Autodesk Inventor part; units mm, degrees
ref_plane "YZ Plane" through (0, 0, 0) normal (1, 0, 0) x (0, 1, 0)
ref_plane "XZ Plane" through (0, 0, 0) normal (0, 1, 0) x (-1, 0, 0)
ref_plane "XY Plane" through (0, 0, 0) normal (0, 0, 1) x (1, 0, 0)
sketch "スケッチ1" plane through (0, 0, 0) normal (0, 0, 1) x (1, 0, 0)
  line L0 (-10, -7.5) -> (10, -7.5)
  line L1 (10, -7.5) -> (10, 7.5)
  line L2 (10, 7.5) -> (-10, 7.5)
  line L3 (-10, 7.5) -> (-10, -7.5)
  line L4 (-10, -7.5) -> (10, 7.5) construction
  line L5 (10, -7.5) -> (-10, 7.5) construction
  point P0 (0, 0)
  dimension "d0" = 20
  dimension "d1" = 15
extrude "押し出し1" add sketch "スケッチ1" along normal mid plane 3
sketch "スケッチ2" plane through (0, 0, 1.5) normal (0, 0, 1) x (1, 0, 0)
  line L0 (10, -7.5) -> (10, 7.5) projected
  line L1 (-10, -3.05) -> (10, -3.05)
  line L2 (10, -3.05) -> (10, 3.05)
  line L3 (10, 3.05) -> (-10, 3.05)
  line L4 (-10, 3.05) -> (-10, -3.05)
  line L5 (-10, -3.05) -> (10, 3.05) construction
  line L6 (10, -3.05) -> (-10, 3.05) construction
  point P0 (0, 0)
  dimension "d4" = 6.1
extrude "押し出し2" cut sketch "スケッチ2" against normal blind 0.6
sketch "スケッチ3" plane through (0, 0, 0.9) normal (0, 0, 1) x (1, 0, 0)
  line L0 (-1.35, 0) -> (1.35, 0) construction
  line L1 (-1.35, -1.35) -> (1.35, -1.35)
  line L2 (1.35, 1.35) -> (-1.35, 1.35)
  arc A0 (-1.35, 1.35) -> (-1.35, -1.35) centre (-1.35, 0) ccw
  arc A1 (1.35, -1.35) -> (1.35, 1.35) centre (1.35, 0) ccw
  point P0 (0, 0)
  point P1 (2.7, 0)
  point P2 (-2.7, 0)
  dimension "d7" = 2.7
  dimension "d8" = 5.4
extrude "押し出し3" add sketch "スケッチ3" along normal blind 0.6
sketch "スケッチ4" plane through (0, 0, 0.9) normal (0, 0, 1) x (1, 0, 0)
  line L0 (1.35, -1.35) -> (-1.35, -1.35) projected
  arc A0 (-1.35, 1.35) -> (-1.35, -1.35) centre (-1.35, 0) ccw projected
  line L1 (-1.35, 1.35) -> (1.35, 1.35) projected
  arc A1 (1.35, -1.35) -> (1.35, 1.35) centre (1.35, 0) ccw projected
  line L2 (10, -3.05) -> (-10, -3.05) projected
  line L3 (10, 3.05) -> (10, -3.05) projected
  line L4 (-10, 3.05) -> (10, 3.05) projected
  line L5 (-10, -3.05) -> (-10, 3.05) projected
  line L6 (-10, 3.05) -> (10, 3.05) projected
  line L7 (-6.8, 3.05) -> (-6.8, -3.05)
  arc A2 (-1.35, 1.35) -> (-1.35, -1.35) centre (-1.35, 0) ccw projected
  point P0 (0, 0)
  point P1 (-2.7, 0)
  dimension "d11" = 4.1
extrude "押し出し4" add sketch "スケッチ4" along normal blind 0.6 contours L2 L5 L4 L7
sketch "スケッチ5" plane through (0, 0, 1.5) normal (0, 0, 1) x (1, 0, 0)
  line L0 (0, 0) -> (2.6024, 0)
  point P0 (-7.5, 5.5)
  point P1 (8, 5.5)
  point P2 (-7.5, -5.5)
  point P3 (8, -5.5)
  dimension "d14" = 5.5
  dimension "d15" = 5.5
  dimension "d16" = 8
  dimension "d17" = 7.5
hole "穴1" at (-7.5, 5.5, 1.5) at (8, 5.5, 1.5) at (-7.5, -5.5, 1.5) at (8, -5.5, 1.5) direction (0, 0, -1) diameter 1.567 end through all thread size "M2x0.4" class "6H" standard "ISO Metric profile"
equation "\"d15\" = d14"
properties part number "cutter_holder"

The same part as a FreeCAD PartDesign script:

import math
import FreeCAD as App
import Part
import Sketcher

V = App.Vector
Q = App.Units.Quantity


def add_polygon(sketch, points):
    """Adds a closed chain of lines whose ends are joined by coincident constraints."""
    first, n = sketch.GeometryCount, len(points)
    for a, b in zip(points, points[1:] + points[:1]):
        sketch.addGeometry(Part.LineSegment(App.Vector(*a, 0), App.Vector(*b, 0)), False)
    for i in range(n):
        sketch.addConstraint(Sketcher.Constraint("Coincident", first + i, 2, first + (i + 1) % n, 1))

doc = App.newDocument("Part")
body = doc.addObject("PartDesign::Body", "Body")

sketch1 = body.newObject("Sketcher::SketchObject", "Sketch")
sketch1.AttachmentSupport = (doc.getObject("XY_Plane"), [""])
sketch1.MapMode = "FlatFace"
add_polygon(sketch1, [(-10, 8), (-10, -8), (10, -8), (10, 8)])
sketch1.addConstraint([
    Sketcher.Constraint("Vertical", 0),
    Sketcher.Constraint("Horizontal", 1),
    Sketcher.Constraint("Vertical", 2),
    Sketcher.Constraint("Horizontal", 3),
    Sketcher.Constraint("Symmetric", 0, 2, 2, 2, -1, 1),
    Sketcher.Constraint("DistanceX", 1, 1, 1, 2, Q("20 mm")),
    Sketcher.Constraint("DistanceY", 0, 2, 0, 1, Q("15 mm")),
])
pad1 = body.newObject("PartDesign::Pad", "Pad")
pad1.Profile = sketch1
pad1.Length = 3
pad1.Midplane = True

sketch2 = body.newObject("Sketcher::SketchObject", "Sketch001")
sketch2.AttachmentSupport = (doc.getObject("XY_Plane"), [""])
sketch2.MapMode = "FlatFace"
sketch2.AttachmentOffset = App.Placement(V(0, 0, 1.5), App.Rotation())
add_polygon(sketch2, [(-10, -3), (10, -3), (10, 3), (-10, 3)])
sketch2.addConstraint([
    Sketcher.Constraint("Horizontal", 0),
    Sketcher.Constraint("Vertical", 1),
    Sketcher.Constraint("Horizontal", 2),
    Sketcher.Constraint("Vertical", 3),
    Sketcher.Constraint("Symmetric", 0, 2, 2, 2, -1, 1),
    Sketcher.Constraint("DistanceY", 1, 1, 1, 2, Q("6.1 mm")),
    Sketcher.Constraint("DistanceX", 0, 1, 0, 2, Q("20 mm")),
])
pocket1 = body.newObject("PartDesign::Pocket", "Pocket")
pocket1.Profile = sketch2
pocket1.Length = 0.6

sketch3 = body.newObject("Sketcher::SketchObject", "Sketch002")
sketch3.AttachmentSupport = (doc.getObject("XY_Plane"), [""])
sketch3.MapMode = "FlatFace"
sketch3.AttachmentOffset = App.Placement(V(0, 0, 0.9), App.Rotation())
sketch3.addGeometry([
    Part.ArcOfCircle(Part.Circle(V(-1.4, 0, 0), V(0, 0, 1), 1.4), math.radians(90), math.radians(270)),
    Part.LineSegment(V(-1.4, -1.4, 0), V(1.4, -1.4, 0)),
    Part.ArcOfCircle(Part.Circle(V(1.4, 0, 0), V(0, 0, 1), 1.4), math.radians(-90), math.radians(90)),
    Part.LineSegment(V(1.4, 1.4, 0), V(-1.4, 1.4, 0)),
], False)
sketch3.addConstraint([
    Sketcher.Constraint("Tangent", 0, 2, 1, 1),
    Sketcher.Constraint("Tangent", 1, 2, 2, 1),
    Sketcher.Constraint("Tangent", 2, 2, 3, 1),
    Sketcher.Constraint("Tangent", 3, 2, 0, 1),
    Sketcher.Constraint("Horizontal", 1),
    Sketcher.Constraint("Horizontal", 3),
    Sketcher.Constraint("Symmetric", 0, 3, 2, 3, -1, 1),
    Sketcher.Constraint("Radius", 0, Q("1.35 mm")),
    Sketcher.Constraint("DistanceX", 1, 1, 1, 2, Q("2.7 mm")),
])
pad2 = body.newObject("PartDesign::Pad", "Pad001")
pad2.Profile = sketch3
pad2.Length = 0.6

sketch4 = body.newObject("Sketcher::SketchObject", "Sketch003")
sketch4.AttachmentSupport = (doc.getObject("XY_Plane"), [""])
sketch4.MapMode = "FlatFace"
sketch4.AttachmentOffset = App.Placement(V(0, 0, 0.9), App.Rotation())
add_polygon(sketch4, [(-10, -3), (-6.8, -3), (-6.8, 3), (-10, 3)])
sketch4.addConstraint([
    Sketcher.Constraint("Horizontal", 0),
    Sketcher.Constraint("Vertical", 1),
    Sketcher.Constraint("Horizontal", 2),
    Sketcher.Constraint("Vertical", 3),
    Sketcher.Constraint("DistanceX", 0, 1, 0, 2, Q("3.2 mm")),
    Sketcher.Constraint("DistanceY", 1, 1, 1, 2, Q("6.1 mm")),
    Sketcher.Constraint("DistanceX", 2, 2, -1, 1, Q("10 mm")),
    Sketcher.Constraint("DistanceY", 0, 2, -1, 1, Q("3.05 mm")),
])
pad3 = body.newObject("PartDesign::Pad", "Pad002")
pad3.Profile = sketch4
pad3.Length = 0.6

sketch5 = body.newObject("Sketcher::SketchObject", "Sketch004")
sketch5.AttachmentSupport = (doc.getObject("XY_Plane"), [""])
sketch5.MapMode = "FlatFace"
sketch5.AttachmentOffset = App.Placement(V(0, 0, 1.5), App.Rotation())
sketch5.addGeometry([
    Part.Circle(V(-7.5, 5.5, 0), V(0, 0, 1), 0.8),
    Part.Circle(V(8, 5.5, 0), V(0, 0, 1), 0.8),
    Part.Circle(V(-7.5, -5.5, 0), V(0, 0, 1), 0.8),
    Part.Circle(V(8, -5.5, 0), V(0, 0, 1), 0.8),
], False)
sketch5.addConstraint([
    Sketcher.Constraint("Equal", 0, 1),
    Sketcher.Constraint("Equal", 1, 2),
    Sketcher.Constraint("Equal", 2, 3),
    Sketcher.Constraint("Symmetric", 0, 3, 2, 3, -1),
    Sketcher.Constraint("Symmetric", 1, 3, 3, 3, -1),
    Sketcher.Constraint("Horizontal", 0, 3, 1, 3),
    Sketcher.Constraint("Diameter", 0, Q("1.567 mm")),
    Sketcher.Constraint("DistanceX", -1, 1, 1, 3, Q("8 mm")),
    Sketcher.Constraint("DistanceY", 2, 3, 0, 3, Q("11 mm")),
    Sketcher.Constraint("DistanceX", 0, 3, -1, 1, Q("7.5 mm")),
])
doc.recompute()
hole = body.newObject("PartDesign::Hole", "Hole")
hole.Profile = sketch5
hole.ThreadType = "None"
hole.Diameter = 1.567
hole.DepthType = "ThroughAll"

doc.recompute()
